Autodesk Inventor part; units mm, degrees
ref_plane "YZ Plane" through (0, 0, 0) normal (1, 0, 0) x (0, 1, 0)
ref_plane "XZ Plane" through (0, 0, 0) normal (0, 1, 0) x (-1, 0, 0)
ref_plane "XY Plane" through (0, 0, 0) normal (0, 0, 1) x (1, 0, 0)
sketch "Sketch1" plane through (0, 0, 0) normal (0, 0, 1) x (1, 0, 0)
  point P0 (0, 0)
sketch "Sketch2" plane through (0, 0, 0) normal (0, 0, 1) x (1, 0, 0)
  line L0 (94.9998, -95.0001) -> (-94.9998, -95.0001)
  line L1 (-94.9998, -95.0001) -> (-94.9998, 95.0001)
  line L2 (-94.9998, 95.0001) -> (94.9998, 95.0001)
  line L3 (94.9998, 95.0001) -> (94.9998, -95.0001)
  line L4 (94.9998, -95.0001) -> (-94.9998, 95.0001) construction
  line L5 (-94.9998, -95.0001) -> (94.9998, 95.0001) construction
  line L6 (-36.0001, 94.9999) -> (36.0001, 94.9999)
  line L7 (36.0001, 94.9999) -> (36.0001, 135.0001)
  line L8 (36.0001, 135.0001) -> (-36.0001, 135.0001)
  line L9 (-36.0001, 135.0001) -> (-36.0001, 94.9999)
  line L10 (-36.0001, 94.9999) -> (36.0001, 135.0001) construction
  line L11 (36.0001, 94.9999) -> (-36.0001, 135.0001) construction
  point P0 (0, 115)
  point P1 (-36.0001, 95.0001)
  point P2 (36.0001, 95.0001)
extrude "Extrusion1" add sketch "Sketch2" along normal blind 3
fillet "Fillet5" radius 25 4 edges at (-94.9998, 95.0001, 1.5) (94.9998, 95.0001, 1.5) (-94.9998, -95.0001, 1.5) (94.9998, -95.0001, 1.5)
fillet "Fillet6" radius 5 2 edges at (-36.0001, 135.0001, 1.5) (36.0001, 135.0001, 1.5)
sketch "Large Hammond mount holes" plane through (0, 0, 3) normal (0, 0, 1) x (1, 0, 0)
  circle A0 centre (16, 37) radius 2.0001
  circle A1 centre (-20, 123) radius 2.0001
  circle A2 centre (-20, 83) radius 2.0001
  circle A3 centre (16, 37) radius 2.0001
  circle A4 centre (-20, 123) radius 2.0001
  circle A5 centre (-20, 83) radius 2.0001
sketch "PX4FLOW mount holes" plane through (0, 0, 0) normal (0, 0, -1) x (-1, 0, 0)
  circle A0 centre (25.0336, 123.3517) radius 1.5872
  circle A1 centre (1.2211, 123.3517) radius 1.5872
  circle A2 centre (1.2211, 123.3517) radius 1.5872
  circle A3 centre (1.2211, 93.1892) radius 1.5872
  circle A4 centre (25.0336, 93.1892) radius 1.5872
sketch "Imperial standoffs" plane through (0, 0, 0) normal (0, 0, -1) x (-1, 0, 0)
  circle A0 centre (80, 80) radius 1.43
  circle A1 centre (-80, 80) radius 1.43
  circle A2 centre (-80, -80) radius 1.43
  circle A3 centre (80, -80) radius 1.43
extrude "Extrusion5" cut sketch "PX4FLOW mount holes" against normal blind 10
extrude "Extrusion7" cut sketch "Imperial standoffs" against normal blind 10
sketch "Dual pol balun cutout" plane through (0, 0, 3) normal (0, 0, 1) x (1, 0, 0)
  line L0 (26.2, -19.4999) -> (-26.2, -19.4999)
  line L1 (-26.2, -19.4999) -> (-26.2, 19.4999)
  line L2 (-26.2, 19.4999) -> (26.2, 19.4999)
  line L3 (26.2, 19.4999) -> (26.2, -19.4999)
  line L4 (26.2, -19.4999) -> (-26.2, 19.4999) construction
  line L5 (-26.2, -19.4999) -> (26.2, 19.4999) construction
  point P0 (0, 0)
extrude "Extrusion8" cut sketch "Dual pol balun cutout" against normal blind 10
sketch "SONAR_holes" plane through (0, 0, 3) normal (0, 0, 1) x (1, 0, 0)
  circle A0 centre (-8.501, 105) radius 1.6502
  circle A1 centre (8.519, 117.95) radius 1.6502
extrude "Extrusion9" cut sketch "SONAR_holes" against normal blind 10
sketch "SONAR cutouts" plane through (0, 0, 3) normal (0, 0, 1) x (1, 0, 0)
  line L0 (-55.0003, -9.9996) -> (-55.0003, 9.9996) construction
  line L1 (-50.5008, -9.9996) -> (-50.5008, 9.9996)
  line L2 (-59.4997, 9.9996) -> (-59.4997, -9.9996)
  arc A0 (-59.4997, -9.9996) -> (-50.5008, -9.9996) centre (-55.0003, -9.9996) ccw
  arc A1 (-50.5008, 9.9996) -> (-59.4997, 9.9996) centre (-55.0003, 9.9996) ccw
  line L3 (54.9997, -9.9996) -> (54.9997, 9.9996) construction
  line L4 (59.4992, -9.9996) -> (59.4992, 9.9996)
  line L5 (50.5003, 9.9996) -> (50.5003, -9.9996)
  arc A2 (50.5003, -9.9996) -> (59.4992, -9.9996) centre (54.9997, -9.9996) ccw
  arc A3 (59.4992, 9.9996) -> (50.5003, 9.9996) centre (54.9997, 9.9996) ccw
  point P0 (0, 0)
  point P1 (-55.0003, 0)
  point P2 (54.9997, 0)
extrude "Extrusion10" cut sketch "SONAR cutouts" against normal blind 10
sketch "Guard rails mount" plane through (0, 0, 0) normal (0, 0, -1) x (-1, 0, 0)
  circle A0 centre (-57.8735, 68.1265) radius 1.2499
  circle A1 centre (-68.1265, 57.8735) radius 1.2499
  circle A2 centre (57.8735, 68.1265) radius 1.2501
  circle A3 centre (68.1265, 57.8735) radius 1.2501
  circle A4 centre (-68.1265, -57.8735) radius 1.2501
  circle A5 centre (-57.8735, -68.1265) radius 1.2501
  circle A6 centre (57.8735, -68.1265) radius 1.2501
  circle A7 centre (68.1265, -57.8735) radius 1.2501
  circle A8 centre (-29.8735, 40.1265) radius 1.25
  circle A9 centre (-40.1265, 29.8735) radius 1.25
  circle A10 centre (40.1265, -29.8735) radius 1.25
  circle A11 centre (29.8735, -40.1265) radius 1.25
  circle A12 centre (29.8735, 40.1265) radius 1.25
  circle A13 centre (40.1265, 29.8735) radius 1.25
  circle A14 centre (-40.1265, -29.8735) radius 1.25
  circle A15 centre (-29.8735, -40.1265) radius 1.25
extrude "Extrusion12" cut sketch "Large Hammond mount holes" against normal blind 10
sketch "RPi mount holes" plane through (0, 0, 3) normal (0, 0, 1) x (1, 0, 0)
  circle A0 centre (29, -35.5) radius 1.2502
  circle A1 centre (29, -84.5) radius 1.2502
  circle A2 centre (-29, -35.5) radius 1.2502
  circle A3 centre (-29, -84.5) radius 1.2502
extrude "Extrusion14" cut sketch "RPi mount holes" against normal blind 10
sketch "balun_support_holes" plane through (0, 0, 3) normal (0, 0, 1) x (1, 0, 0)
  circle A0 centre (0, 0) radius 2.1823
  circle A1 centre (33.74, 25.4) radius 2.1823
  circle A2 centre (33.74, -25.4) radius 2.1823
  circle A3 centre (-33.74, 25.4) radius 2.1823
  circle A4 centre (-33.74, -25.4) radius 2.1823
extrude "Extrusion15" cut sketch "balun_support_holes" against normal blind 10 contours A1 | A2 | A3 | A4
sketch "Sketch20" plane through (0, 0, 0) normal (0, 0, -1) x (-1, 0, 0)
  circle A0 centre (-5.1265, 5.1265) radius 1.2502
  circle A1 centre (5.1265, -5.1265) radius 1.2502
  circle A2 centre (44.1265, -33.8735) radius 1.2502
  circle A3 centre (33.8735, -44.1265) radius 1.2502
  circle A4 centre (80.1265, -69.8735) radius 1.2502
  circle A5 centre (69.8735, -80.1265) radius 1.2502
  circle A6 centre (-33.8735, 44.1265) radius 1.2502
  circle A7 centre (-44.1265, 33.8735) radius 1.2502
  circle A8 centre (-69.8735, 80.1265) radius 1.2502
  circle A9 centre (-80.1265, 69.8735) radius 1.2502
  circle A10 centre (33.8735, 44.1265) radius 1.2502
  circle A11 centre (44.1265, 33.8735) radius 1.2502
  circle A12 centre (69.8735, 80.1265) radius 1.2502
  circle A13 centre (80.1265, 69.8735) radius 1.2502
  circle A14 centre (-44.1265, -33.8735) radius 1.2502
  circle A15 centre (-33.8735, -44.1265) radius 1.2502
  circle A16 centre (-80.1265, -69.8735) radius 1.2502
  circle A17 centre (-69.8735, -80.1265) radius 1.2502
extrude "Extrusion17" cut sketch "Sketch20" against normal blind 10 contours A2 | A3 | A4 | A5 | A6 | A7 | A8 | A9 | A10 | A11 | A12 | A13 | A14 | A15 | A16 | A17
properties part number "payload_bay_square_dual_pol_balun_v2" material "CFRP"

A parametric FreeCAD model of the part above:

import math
import FreeCAD as App
import Part
import Sketcher
from FreeCAD import Vector
Q = App.Units.Quantity


def edges_at(feature, points):
    """Names of the edges that pass closest to the given points."""
    edges = feature.Shape.Edges
    near = lambda p: min(range(len(edges)), key=lambda i: edges[i].distToShape(Part.Vertex(*p))[0])
    return sorted({f"Edge{near(p) + 1}" for p in points})

doc = App.newDocument("Part")
params = doc.addObject("Spreadsheet::Sheet", "Params")
for row, (alias, value) in enumerate([
    ("pad1_length", "3 mm"),
    ("fillet_radius", "25 mm"),
    ("fillet2_radius", "5 mm"),
    ("pocket1_length", "10 mm"),
    ("sketch3_diameter", "2.86 mm"),
    ("pocket2_length", "10 mm"),
    ("sketch4_width", "52.4 mm"),
    ("pocket3_length", "10 mm"),
    ("pocket4_length", "10 mm"),
    ("pocket5_length", "10 mm"),
    ("pocket6_length", "10 mm"),
    ("pocket7_length", "10 mm"),
    ("pocket8_length", "10 mm"),
    ("pocket9_length", "10 mm"),
], start=1):
    params.set(f"A{row}", alias)
    params.set(f"B{row}", "=" + value)
    params.setAlias(f"B{row}", alias)

body = doc.addObject("PartDesign::Body", "Body")

# Sketch on XY plane
sketch1 = doc.addObject("Sketcher::SketchObject", "Sketch")
body.addObject(sketch1)
sketch1.AttachmentSupport = (doc.XY_Plane, [""])
sketch1.MapMode = "FlatFace"
sketch1.addGeometry([
    Part.LineSegment(Vector(-95, -95, 0), Vector(95, -95, 0)),  # 0
    Part.LineSegment(Vector(95, -95, 0), Vector(95, 95, 0)),  # 1
    Part.LineSegment(Vector(95, 95, 0), Vector(36, 95, 0)),  # 2
    Part.LineSegment(Vector(36, 95, 0), Vector(36, 135, 0)),  # 3
    Part.LineSegment(Vector(36, 135, 0), Vector(-36, 135, 0)),  # 4
    Part.LineSegment(Vector(-36, 135, 0), Vector(-36, 95, 0)),  # 5
    Part.LineSegment(Vector(-36, 95, 0), Vector(-95, 95, 0)),  # 6
    Part.LineSegment(Vector(-95, 95, 0), Vector(-95, -95, 0)),  # 7
], False)
sketch1.addConstraint([
    Sketcher.Constraint("Coincident", 0, 2, 1, 1),
    Sketcher.Constraint("Coincident", 1, 2, 2, 1),
    Sketcher.Constraint("Coincident", 2, 2, 3, 1),
    Sketcher.Constraint("Coincident", 3, 2, 4, 1),
    Sketcher.Constraint("Coincident", 4, 2, 5, 1),
    Sketcher.Constraint("Coincident", 5, 2, 6, 1),
    Sketcher.Constraint("Coincident", 6, 2, 7, 1),
    Sketcher.Constraint("Coincident", 7, 2, 0, 1),
    Sketcher.Constraint("Horizontal", 0),
    Sketcher.Constraint("Vertical", 1),
    Sketcher.Constraint("Horizontal", 2),
    Sketcher.Constraint("Vertical", 3),
    Sketcher.Constraint("Horizontal", 4),
    Sketcher.Constraint("Vertical", 5),
    Sketcher.Constraint("Horizontal", 6),
    Sketcher.Constraint("Vertical", 7),
    Sketcher.Constraint("Symmetric", 0, 2, 6, 2, -1, 1),
    Sketcher.Constraint("Symmetric", 2, 2, 5, 2, -2),
    Sketcher.Constraint("DistanceY", 0, 2, -1, 1, Q("95 mm")),
    Sketcher.Constraint("DistanceX", -1, 1, 2, 2, Q("36 mm")),
    Sketcher.Constraint("DistanceY", -1, 1, 3, 2, Q("135 mm")),
    Sketcher.Constraint("DistanceX", 4, 2, 1, 2, Q("131 mm")),
])
pad1 = doc.addObject("PartDesign::Pad", "Pad")
body.addObject(pad1)
pad1.Profile = sketch1
pad1.setExpression("Length", "Params.pad1_length")
doc.recompute()

fillet = doc.addObject("PartDesign::Fillet", "Fillet")
body.addObject(fillet)
fillet.Base = (pad1, edges_at(pad1, [
    (-95, 95, 1.5),
    (95, 95, 1.5),
    (-95, -95, 1.5),
    (95, -95, 1.5),
]))
fillet.setExpression("Radius", "Params.fillet_radius")
doc.recompute()

fillet2 = doc.addObject("PartDesign::Fillet", "Fillet001")
body.addObject(fillet2)
fillet2.Base = (fillet, edges_at(fillet, [(-36, 135, 1.5), (36, 135, 1.5)]))
fillet2.setExpression("Radius", "Params.fillet2_radius")

# Sketch on XY plane
sketch2 = doc.addObject("Sketcher::SketchObject", "Sketch001")
body.addObject(sketch2)
sketch2.AttachmentSupport = (doc.XY_Plane, [""])
sketch2.MapMode = "FlatFace"
sketch2.addGeometry([
    Part.Circle(Vector(-25, 123.4, 0), Vector(0, 0, 1), 1.6),
    Part.Circle(Vector(-1.2, 123.4, 0), Vector(0, 0, 1), 1.6),
    Part.Circle(Vector(-1.2, 93.2, 0), Vector(0, 0, 1), 1.6),
    Part.Circle(Vector(-25, 93.2, 0), Vector(0, 0, 1), 1.6),
], False)
sketch2.addConstraint([
    Sketcher.Constraint("Equal", 0, 1),
    Sketcher.Constraint("Equal", 1, 2),
    Sketcher.Constraint("Equal", 2, 3),
    Sketcher.Constraint("Horizontal", 0, 3, 1, 3),
    Sketcher.Constraint("Horizontal", 2, 3, 3, 3),
    Sketcher.Constraint("Vertical", 1, 3, 2, 3),
    Sketcher.Constraint("Vertical", 0, 3, 3, 3),
    Sketcher.Constraint("Diameter", 0, Q("3.1744 mm")),
    Sketcher.Constraint("DistanceX", 1, 3, -1, 1, Q("1.221 mm")),
    Sketcher.Constraint("DistanceX", 0, 3, -1, 1, Q("25.0336 mm")),
    Sketcher.Constraint("DistanceY", -1, 1, 0, 3, Q("123.3517 mm")),
    Sketcher.Constraint("DistanceY", -1, 1, 2, 3, Q("93.1892 mm")),
])
pocket1 = doc.addObject("PartDesign::Pocket", "Pocket")
body.addObject(pocket1)
pocket1.Profile = sketch2
pocket1.setExpression("Length", "Params.pocket1_length")
pocket1.Reversed = True

# Sketch on XY plane
sketch3 = doc.addObject("Sketcher::SketchObject", "Sketch002")
body.addObject(sketch3)
sketch3.AttachmentSupport = (doc.XY_Plane, [""])
sketch3.MapMode = "FlatFace"
sketch3.addGeometry([
    Part.Circle(Vector(-80, 80, 0), Vector(0, 0, 1), 1.4),
    Part.Circle(Vector(80, 80, 0), Vector(0, 0, 1), 1.4),
    Part.Circle(Vector(80, -80, 0), Vector(0, 0, 1), 1.4),
    Part.Circle(Vector(-80, -80, 0), Vector(0, 0, 1), 1.4),
], False)
sketch3.addConstraint([
    Sketcher.Constraint("Equal", 0, 1),
    Sketcher.Constraint("Equal", 1, 2),
    Sketcher.Constraint("Equal", 2, 3),
    Sketcher.Constraint("Symmetric", 0, 3, 2, 3, -1, 1),
    Sketcher.Constraint("Symmetric", 1, 3, 3, 3, -1, 1),
    Sketcher.Constraint("Symmetric", 0, 3, 1, 3, -2),
    Sketcher.Constraint("Diameter", 0, Q("2.86 mm")),
    Sketcher.Constraint("DistanceX", 0, 3, -1, 1, Q("80 mm")),
    Sketcher.Constraint("DistanceY", -1, 1, 0, 3, Q("80 mm")),
])
sketch3.setExpression("Constraints[6]", "Params.sketch3_diameter")
pocket2 = doc.addObject("PartDesign::Pocket", "Pocket001")
body.addObject(pocket2)
pocket2.Profile = sketch3
pocket2.setExpression("Length", "Params.pocket2_length")
pocket2.Reversed = True

# Sketch on XY plane
sketch4 = doc.addObject("Sketcher::SketchObject", "Sketch003")
body.addObject(sketch4)
sketch4.AttachmentSupport = (doc.XY_Plane, [""])
sketch4.MapMode = "FlatFace"
sketch4.AttachmentOffset = App.Placement(Vector(0, 0, 3), App.Rotation())
sketch4.addGeometry([
    Part.LineSegment(Vector(-26, -19, 0), Vector(26, -19, 0)),
    Part.LineSegment(Vector(26, -19, 0), Vector(26, 19, 0)),
    Part.LineSegment(Vector(26, 19, 0), Vector(-26, 19, 0)),
    Part.LineSegment(Vector(-26, 19, 0), Vector(-26, -19, 0)),
], False)
sketch4.addConstraint([
    Sketcher.Constraint("Coincident", 0, 2, 1, 1),
    Sketcher.Constraint("Coincident", 1, 2, 2, 1),
    Sketcher.Constraint("Coincident", 2, 2, 3, 1),
    Sketcher.Constraint("Coincident", 3, 2, 0, 1),
    Sketcher.Constraint("Horizontal", 0),
    Sketcher.Constraint("Vertical", 1),
    Sketcher.Constraint("Horizontal", 2),
    Sketcher.Constraint("Vertical", 3),
    Sketcher.Constraint("Symmetric", 0, 2, 2, 2, -1, 1),
    Sketcher.Constraint("DistanceX", 0, 1, 0, 2, Q("52.4 mm")),
    Sketcher.Constraint("DistanceY", 0, 2, -1, 1, Q("19.5 mm")),
])
sketch4.setExpression("Constraints[9]", "Params.sketch4_width")
pocket3 = doc.addObject("PartDesign::Pocket", "Pocket002")
body.addObject(pocket3)
pocket3.Profile = sketch4
pocket3.setExpression("Length", "Params.pocket3_length")

# Sketch on XY plane
sketch5 = doc.addObject("Sketcher::SketchObject", "Sketch004")
body.addObject(sketch5)
sketch5.AttachmentSupport = (doc.XY_Plane, [""])
sketch5.MapMode = "FlatFace"
sketch5.AttachmentOffset = App.Placement(Vector(0, 0, 3), App.Rotation())
sketch5.addGeometry([
    Part.Circle(Vector(-8.5, 105, 0), Vector(0, 0, 1), 1.7),
    Part.Circle(Vector(8.5, 118, 0), Vector(0, 0, 1), 1.7),
], False)
sketch5.addConstraint([
    Sketcher.Constraint("Equal", 0, 1),
    Sketcher.Constraint("DistanceY", -1, 1, 0, 3, Q("105 mm")),
    Sketcher.Constraint("Diameter", 0, Q("3.3004 mm")),
    Sketcher.Constraint("DistanceY", -1, 1, 1, 3, Q("117.95 mm")),
    Sketcher.Constraint("DistanceX", 0, 3, 1, 3, Q("17.02 mm")),
    Sketcher.Constraint("DistanceX", 0, 3, -1, 1, Q("8.501 mm")),
])
pocket4 = doc.addObject("PartDesign::Pocket", "Pocket003")
body.addObject(pocket4)
pocket4.Profile = sketch5
pocket4.setExpression("Length", "Params.pocket4_length")

# Sketch on XY plane
sketch6 = doc.addObject("Sketcher::SketchObject", "Sketch005")
body.addObject(sketch6)
sketch6.AttachmentSupport = (doc.XY_Plane, [""])
sketch6.MapMode = "FlatFace"
sketch6.AttachmentOffset = App.Placement(Vector(0, 0, 3), App.Rotation())
sketch6.addGeometry([
    Part.ArcOfCircle(Part.Circle(Vector(-55, -10, 0), Vector(0, 0, 1), 4.5), math.radians(180), math.radians(360)),  # 0
    Part.LineSegment(Vector(-50.5, -10, 0), Vector(-50.5, 10, 0)),  # 1
    Part.ArcOfCircle(Part.Circle(Vector(-55, 10, 0), Vector(0, 0, 1), 4.5), math.radians(0), math.radians(180)),  # 2
    Part.LineSegment(Vector(-59.5, 10, 0), Vector(-59.5, -10, 0)),  # 3
    Part.ArcOfCircle(Part.Circle(Vector(55, -10, 0), Vector(0, 0, 1), 4.5), math.radians(180), math.radians(360)),  # 4
    Part.LineSegment(Vector(59.5, -10, 0), Vector(59.5, 10, 0)),  # 5
    Part.ArcOfCircle(Part.Circle(Vector(55, 10, 0), Vector(0, 0, 1), 4.5), math.radians(0), math.radians(180)),  # 6
    Part.LineSegment(Vector(50.5, 10, 0), Vector(50.5, -10, 0)),  # 7
], False)
sketch6.addConstraint([
    Sketcher.Constraint("Tangent", 0, 2, 1, 1),
    Sketcher.Constraint("Tangent", 1, 2, 2, 1),
    Sketcher.Constraint("Tangent", 2, 2, 3, 1),
    Sketcher.Constraint("Tangent", 3, 2, 0, 1),
    Sketcher.Constraint("Tangent", 4, 2, 5, 1),
    Sketcher.Constraint("Tangent", 5, 2, 6, 1),
    Sketcher.Constraint("Tangent", 6, 2, 7, 1),
    Sketcher.Constraint("Tangent", 7, 2, 4, 1),
    Sketcher.Constraint("Vertical", 1),
    Sketcher.Constraint("Vertical", 3),
    Sketcher.Constraint("Vertical", 5),
    Sketcher.Constraint("Vertical", 7),
    Sketcher.Constraint("Equal", 2, 4),
    Sketcher.Constraint("Horizontal", 0, 3, 4, 3),
    Sketcher.Constraint("Horizontal", 2, 3, 6, 3),
    Sketcher.Constraint("DistanceX", 0, 3, 4, 3, Q("110 mm")),
    Sketcher.Constraint("Radius", 0, Q("4.4994 mm")),
    Sketcher.Constraint("DistanceY", 1, 1, 1, 2, Q("19.9992 mm")),
    Sketcher.Constraint("DistanceX", 0, 2, -1, 1, Q("50.501 mm")),
    Sketcher.Constraint("DistanceY", 0, 3, -1, 1, Q("9.9996 mm")),
])
pocket5 = doc.addObject("PartDesign::Pocket", "Pocket004")
body.addObject(pocket5)
pocket5.Profile = sketch6
pocket5.setExpression("Length", "Params.pocket5_length")

# Sketch on XY plane
sketch7 = doc.addObject("Sketcher::SketchObject", "Sketch006")
body.addObject(sketch7)
sketch7.AttachmentSupport = (doc.XY_Plane, [""])
sketch7.MapMode = "FlatFace"
sketch7.AttachmentOffset = App.Placement(Vector(0, 0, 3), App.Rotation())
sketch7.addGeometry([
    Part.Circle(Vector(16, 37, 0), Vector(0, 0, 1), 2),
    Part.Circle(Vector(-20, 123, 0), Vector(0, 0, 1), 2),
    Part.Circle(Vector(-20, 83, 0), Vector(0, 0, 1), 2),
], False)
sketch7.addConstraint([
    Sketcher.Constraint("Equal", 0, 1),
    Sketcher.Constraint("Equal", 1, 2),
    Sketcher.Constraint("Vertical", 1, 3, 2, 3),
    Sketcher.Constraint("DistanceX", -1, 1, 0, 3, Q("16 mm")),
    Sketcher.Constraint("DistanceY", -1, 1, 0, 3, Q("37 mm")),
    Sketcher.Constraint("DistanceX", 1, 3, -1, 1, Q("20 mm")),
    Sketcher.Constraint("DistanceY", -1, 1, 1, 3, Q("123 mm")),
    Sketcher.Constraint("DistanceY", -1, 1, 2, 3, Q("83 mm")),
    Sketcher.Constraint("Diameter", 0, Q("4.0002 mm")),
])
pocket6 = doc.addObject("PartDesign::Pocket", "Pocket005")
body.addObject(pocket6)
pocket6.Profile = sketch7
pocket6.setExpression("Length", "Params.pocket6_length")

# Sketch on XY plane
sketch8 = doc.addObject("Sketcher::SketchObject", "Sketch007")
body.addObject(sketch8)
sketch8.AttachmentSupport = (doc.XY_Plane, [""])
sketch8.MapMode = "FlatFace"
sketch8.AttachmentOffset = App.Placement(Vector(0, 0, 3), App.Rotation())
sketch8.addGeometry([
    Part.Circle(Vector(29, -35.5, 0), Vector(0, 0, 1), 1.3),
    Part.Circle(Vector(29, -84.5, 0), Vector(0, 0, 1), 1.3),
    Part.Circle(Vector(-29, -35.5, 0), Vector(0, 0, 1), 1.3),
    Part.Circle(Vector(-29, -84.5, 0), Vector(0, 0, 1), 1.3),
], False)
sketch8.addConstraint([
    Sketcher.Constraint("Equal", 0, 1),
    Sketcher.Constraint("Equal", 1, 2),
    Sketcher.Constraint("Equal", 2, 3),
    Sketcher.Constraint("Symmetric", 0, 3, 2, 3, -2),
    Sketcher.Constraint("Symmetric", 1, 3, 3, 3, -2),
    Sketcher.Constraint("Vertical", 0, 3, 1, 3),
    Sketcher.Constraint("DistanceX", -1, 1, 0, 3, Q("29 mm")),
    Sketcher.Constraint("DistanceY", 1, 3, 0, 3, Q("49 mm")),
    Sketcher.Constraint("Diameter", 0, Q("2.5004 mm")),
    Sketcher.Constraint("DistanceY", 0, 3, -1, 1, Q("35.5 mm")),
])
pocket7 = doc.addObject("PartDesign::Pocket", "Pocket006")
body.addObject(pocket7)
pocket7.Profile = sketch8
pocket7.setExpression("Length", "Params.pocket7_length")

# Sketch on XY plane
sketch9 = doc.addObject("Sketcher::SketchObject", "Sketch008")
body.addObject(sketch9)
sketch9.AttachmentSupport = (doc.XY_Plane, [""])
sketch9.MapMode = "FlatFace"
sketch9.AttachmentOffset = App.Placement(Vector(0, 0, 3), App.Rotation())
sketch9.addGeometry([
    Part.Circle(Vector(33.7, 25.4, 0), Vector(0, 0, 1), 2.2),
    Part.Circle(Vector(33.7, -25.4, 0), Vector(0, 0, 1), 2.2),
    Part.Circle(Vector(-33.7, 25.4, 0), Vector(0, 0, 1), 2.2),
    Part.Circle(Vector(-33.7, -25.4, 0), Vector(0, 0, 1), 2.2),
], False)
sketch9.addConstraint([
    Sketcher.Constraint("Equal", 0, 1),
    Sketcher.Constraint("Equal", 1, 2),
    Sketcher.Constraint("Equal", 2, 3),
    Sketcher.Constraint("Symmetric", 1, 3, 2, 3, -1, 1),
    Sketcher.Constraint("Symmetric", 0, 3, 3, 3, -1, 1),
    Sketcher.Constraint("Symmetric", 0, 3, 2, 3, -2),
    Sketcher.Constraint("Diameter", 0, Q("4.3646 mm")),
    Sketcher.Constraint("DistanceY", -1, 1, 0, 3, Q("25.4 mm")),
    Sketcher.Constraint("DistanceX", -1, 1, 0, 3, Q("33.74 mm")),
])
pocket8 = doc.addObject("PartDesign::Pocket", "Pocket007")
body.addObject(pocket8)
pocket8.Profile = sketch9
pocket8.setExpression("Length", "Params.pocket8_length")

# Sketch on XY plane
sketch10 = doc.addObject("Sketcher::SketchObject", "Sketch009")
body.addObject(sketch10)
sketch10.AttachmentSupport = (doc.XY_Plane, [""])
sketch10.MapMode = "FlatFace"
sketch10.addGeometry([
    Part.Circle(Vector(-44.1, -33.9, 0), Vector(0, 0, 1), 1.3),  # 0
    Part.Circle(Vector(-33.9, -44.1, 0), Vector(0, 0, 1), 1.3),  # 1
    Part.Circle(Vector(-80.1, -69.9, 0), Vector(0, 0, 1), 1.3),  # 2
    Part.Circle(Vector(-69.9, -80.1, 0), Vector(0, 0, 1), 1.3),  # 3
    Part.Circle(Vector(33.9, 44.1, 0), Vector(0, 0, 1), 1.3),  # 4
    Part.Circle(Vector(44.1, 33.9, 0), Vector(0, 0, 1), 1.3),  # 5
    Part.Circle(Vector(69.9, 80.1, 0), Vector(0, 0, 1), 1.3),  # 6
    Part.Circle(Vector(80.1, 69.9, 0), Vector(0, 0, 1), 1.3),  # 7
    Part.Circle(Vector(-33.9, 44.1, 0), Vector(0, 0, 1), 1.3),  # 8
    Part.Circle(Vector(-44.1, 33.9, 0), Vector(0, 0, 1), 1.3),  # 9
    Part.Circle(Vector(-69.9, 80.1, 0), Vector(0, 0, 1), 1.3),  # 10
    Part.Circle(Vector(-80.1, 69.9, 0), Vector(0, 0, 1), 1.3),  # 11
    Part.Circle(Vector(44.1, -33.9, 0), Vector(0, 0, 1), 1.3),  # 12
    Part.Circle(Vector(33.9, -44.1, 0), Vector(0, 0, 1), 1.3),  # 13
    Part.Circle(Vector(80.1, -69.9, 0), Vector(0, 0, 1), 1.3),  # 14
    Part.Circle(Vector(69.9, -80.1, 0), Vector(0, 0, 1), 1.3),  # 15
], False)
sketch10.addConstraint([
    Sketcher.Constraint("Equal", 0, 1),
    Sketcher.Constraint("Equal", 1, 2),
    Sketcher.Constraint("Equal", 2, 3),
    Sketcher.Constraint("Equal", 3, 4),
    Sketcher.Constraint("Equal", 4, 5),
    Sketcher.Constraint("Equal", 5, 6),
    Sketcher.Constraint("Equal", 6, 7),
    Sketcher.Constraint("Equal", 7, 8),
    Sketcher.Constraint("Equal", 8, 9),
    Sketcher.Constraint("Equal", 9, 10),
    Sketcher.Constraint("Equal", 10, 11),
    Sketcher.Constraint("Equal", 11, 12),
    Sketcher.Constraint("Equal", 12, 13),
    Sketcher.Constraint("Equal", 13, 14),
    Sketcher.Constraint("Equal", 14, 15),
    Sketcher.Constraint("Symmetric", 1, 3, 4, 3, -1, 1),
    Sketcher.Constraint("Symmetric", 0, 3, 5, 3, -1, 1),
    Sketcher.Constraint("Symmetric", 3, 3, 6, 3, -1, 1),
    Sketcher.Constraint("Symmetric", 2, 3, 7, 3, -1, 1),
    Sketcher.Constraint("Symmetric", 9, 3, 12, 3, -1, 1),
    Sketcher.Constraint("Symmetric", 8, 3, 13, 3, -1, 1),
    Sketcher.Constraint("Symmetric", 11, 3, 14, 3, -1, 1),
    Sketcher.Constraint("Symmetric", 10, 3, 15, 3, -1, 1),
    Sketcher.Constraint("Symmetric", 4, 3, 8, 3, -2),
    Sketcher.Constraint("Symmetric", 5, 3, 9, 3, -2),
    Sketcher.Constraint("Symmetric", 6, 3, 10, 3, -2),
    Sketcher.Constraint("Symmetric", 7, 3, 11, 3, -2),
    Sketcher.Constraint("DistanceX", 2, 3, 0, 3, Q("36 mm")),
    Sketcher.Constraint("DistanceY", 2, 3, 0, 3, Q("36 mm")),
    Sketcher.Constraint("DistanceX", 3, 3, 1, 3, Q("36 mm")),
    Sketcher.Constraint("DistanceY", 3, 3, 1, 3, Q("36 mm")),
    Sketcher.Constraint("DistanceX", 0, 3, 4, 3, Q("78 mm")),
    Sketcher.Constraint("DistanceY", 0, 3, 4, 3, Q("78 mm")),
    Sketcher.Constraint("Diameter", 0, Q("2.5004 mm")),
    Sketcher.Constraint("DistanceX", 0, 3, 1, 3, Q("10.253 mm")),
    Sketcher.Constraint("DistanceY", 1, 3, 0, 3, Q("10.253 mm")),
])
pocket9 = doc.addObject("PartDesign::Pocket", "Pocket008")
body.addObject(pocket9)
pocket9.Profile = sketch10
pocket9.setExpression("Length", "Params.pocket9_length")
pocket9.Reversed = True

doc.recompute()
